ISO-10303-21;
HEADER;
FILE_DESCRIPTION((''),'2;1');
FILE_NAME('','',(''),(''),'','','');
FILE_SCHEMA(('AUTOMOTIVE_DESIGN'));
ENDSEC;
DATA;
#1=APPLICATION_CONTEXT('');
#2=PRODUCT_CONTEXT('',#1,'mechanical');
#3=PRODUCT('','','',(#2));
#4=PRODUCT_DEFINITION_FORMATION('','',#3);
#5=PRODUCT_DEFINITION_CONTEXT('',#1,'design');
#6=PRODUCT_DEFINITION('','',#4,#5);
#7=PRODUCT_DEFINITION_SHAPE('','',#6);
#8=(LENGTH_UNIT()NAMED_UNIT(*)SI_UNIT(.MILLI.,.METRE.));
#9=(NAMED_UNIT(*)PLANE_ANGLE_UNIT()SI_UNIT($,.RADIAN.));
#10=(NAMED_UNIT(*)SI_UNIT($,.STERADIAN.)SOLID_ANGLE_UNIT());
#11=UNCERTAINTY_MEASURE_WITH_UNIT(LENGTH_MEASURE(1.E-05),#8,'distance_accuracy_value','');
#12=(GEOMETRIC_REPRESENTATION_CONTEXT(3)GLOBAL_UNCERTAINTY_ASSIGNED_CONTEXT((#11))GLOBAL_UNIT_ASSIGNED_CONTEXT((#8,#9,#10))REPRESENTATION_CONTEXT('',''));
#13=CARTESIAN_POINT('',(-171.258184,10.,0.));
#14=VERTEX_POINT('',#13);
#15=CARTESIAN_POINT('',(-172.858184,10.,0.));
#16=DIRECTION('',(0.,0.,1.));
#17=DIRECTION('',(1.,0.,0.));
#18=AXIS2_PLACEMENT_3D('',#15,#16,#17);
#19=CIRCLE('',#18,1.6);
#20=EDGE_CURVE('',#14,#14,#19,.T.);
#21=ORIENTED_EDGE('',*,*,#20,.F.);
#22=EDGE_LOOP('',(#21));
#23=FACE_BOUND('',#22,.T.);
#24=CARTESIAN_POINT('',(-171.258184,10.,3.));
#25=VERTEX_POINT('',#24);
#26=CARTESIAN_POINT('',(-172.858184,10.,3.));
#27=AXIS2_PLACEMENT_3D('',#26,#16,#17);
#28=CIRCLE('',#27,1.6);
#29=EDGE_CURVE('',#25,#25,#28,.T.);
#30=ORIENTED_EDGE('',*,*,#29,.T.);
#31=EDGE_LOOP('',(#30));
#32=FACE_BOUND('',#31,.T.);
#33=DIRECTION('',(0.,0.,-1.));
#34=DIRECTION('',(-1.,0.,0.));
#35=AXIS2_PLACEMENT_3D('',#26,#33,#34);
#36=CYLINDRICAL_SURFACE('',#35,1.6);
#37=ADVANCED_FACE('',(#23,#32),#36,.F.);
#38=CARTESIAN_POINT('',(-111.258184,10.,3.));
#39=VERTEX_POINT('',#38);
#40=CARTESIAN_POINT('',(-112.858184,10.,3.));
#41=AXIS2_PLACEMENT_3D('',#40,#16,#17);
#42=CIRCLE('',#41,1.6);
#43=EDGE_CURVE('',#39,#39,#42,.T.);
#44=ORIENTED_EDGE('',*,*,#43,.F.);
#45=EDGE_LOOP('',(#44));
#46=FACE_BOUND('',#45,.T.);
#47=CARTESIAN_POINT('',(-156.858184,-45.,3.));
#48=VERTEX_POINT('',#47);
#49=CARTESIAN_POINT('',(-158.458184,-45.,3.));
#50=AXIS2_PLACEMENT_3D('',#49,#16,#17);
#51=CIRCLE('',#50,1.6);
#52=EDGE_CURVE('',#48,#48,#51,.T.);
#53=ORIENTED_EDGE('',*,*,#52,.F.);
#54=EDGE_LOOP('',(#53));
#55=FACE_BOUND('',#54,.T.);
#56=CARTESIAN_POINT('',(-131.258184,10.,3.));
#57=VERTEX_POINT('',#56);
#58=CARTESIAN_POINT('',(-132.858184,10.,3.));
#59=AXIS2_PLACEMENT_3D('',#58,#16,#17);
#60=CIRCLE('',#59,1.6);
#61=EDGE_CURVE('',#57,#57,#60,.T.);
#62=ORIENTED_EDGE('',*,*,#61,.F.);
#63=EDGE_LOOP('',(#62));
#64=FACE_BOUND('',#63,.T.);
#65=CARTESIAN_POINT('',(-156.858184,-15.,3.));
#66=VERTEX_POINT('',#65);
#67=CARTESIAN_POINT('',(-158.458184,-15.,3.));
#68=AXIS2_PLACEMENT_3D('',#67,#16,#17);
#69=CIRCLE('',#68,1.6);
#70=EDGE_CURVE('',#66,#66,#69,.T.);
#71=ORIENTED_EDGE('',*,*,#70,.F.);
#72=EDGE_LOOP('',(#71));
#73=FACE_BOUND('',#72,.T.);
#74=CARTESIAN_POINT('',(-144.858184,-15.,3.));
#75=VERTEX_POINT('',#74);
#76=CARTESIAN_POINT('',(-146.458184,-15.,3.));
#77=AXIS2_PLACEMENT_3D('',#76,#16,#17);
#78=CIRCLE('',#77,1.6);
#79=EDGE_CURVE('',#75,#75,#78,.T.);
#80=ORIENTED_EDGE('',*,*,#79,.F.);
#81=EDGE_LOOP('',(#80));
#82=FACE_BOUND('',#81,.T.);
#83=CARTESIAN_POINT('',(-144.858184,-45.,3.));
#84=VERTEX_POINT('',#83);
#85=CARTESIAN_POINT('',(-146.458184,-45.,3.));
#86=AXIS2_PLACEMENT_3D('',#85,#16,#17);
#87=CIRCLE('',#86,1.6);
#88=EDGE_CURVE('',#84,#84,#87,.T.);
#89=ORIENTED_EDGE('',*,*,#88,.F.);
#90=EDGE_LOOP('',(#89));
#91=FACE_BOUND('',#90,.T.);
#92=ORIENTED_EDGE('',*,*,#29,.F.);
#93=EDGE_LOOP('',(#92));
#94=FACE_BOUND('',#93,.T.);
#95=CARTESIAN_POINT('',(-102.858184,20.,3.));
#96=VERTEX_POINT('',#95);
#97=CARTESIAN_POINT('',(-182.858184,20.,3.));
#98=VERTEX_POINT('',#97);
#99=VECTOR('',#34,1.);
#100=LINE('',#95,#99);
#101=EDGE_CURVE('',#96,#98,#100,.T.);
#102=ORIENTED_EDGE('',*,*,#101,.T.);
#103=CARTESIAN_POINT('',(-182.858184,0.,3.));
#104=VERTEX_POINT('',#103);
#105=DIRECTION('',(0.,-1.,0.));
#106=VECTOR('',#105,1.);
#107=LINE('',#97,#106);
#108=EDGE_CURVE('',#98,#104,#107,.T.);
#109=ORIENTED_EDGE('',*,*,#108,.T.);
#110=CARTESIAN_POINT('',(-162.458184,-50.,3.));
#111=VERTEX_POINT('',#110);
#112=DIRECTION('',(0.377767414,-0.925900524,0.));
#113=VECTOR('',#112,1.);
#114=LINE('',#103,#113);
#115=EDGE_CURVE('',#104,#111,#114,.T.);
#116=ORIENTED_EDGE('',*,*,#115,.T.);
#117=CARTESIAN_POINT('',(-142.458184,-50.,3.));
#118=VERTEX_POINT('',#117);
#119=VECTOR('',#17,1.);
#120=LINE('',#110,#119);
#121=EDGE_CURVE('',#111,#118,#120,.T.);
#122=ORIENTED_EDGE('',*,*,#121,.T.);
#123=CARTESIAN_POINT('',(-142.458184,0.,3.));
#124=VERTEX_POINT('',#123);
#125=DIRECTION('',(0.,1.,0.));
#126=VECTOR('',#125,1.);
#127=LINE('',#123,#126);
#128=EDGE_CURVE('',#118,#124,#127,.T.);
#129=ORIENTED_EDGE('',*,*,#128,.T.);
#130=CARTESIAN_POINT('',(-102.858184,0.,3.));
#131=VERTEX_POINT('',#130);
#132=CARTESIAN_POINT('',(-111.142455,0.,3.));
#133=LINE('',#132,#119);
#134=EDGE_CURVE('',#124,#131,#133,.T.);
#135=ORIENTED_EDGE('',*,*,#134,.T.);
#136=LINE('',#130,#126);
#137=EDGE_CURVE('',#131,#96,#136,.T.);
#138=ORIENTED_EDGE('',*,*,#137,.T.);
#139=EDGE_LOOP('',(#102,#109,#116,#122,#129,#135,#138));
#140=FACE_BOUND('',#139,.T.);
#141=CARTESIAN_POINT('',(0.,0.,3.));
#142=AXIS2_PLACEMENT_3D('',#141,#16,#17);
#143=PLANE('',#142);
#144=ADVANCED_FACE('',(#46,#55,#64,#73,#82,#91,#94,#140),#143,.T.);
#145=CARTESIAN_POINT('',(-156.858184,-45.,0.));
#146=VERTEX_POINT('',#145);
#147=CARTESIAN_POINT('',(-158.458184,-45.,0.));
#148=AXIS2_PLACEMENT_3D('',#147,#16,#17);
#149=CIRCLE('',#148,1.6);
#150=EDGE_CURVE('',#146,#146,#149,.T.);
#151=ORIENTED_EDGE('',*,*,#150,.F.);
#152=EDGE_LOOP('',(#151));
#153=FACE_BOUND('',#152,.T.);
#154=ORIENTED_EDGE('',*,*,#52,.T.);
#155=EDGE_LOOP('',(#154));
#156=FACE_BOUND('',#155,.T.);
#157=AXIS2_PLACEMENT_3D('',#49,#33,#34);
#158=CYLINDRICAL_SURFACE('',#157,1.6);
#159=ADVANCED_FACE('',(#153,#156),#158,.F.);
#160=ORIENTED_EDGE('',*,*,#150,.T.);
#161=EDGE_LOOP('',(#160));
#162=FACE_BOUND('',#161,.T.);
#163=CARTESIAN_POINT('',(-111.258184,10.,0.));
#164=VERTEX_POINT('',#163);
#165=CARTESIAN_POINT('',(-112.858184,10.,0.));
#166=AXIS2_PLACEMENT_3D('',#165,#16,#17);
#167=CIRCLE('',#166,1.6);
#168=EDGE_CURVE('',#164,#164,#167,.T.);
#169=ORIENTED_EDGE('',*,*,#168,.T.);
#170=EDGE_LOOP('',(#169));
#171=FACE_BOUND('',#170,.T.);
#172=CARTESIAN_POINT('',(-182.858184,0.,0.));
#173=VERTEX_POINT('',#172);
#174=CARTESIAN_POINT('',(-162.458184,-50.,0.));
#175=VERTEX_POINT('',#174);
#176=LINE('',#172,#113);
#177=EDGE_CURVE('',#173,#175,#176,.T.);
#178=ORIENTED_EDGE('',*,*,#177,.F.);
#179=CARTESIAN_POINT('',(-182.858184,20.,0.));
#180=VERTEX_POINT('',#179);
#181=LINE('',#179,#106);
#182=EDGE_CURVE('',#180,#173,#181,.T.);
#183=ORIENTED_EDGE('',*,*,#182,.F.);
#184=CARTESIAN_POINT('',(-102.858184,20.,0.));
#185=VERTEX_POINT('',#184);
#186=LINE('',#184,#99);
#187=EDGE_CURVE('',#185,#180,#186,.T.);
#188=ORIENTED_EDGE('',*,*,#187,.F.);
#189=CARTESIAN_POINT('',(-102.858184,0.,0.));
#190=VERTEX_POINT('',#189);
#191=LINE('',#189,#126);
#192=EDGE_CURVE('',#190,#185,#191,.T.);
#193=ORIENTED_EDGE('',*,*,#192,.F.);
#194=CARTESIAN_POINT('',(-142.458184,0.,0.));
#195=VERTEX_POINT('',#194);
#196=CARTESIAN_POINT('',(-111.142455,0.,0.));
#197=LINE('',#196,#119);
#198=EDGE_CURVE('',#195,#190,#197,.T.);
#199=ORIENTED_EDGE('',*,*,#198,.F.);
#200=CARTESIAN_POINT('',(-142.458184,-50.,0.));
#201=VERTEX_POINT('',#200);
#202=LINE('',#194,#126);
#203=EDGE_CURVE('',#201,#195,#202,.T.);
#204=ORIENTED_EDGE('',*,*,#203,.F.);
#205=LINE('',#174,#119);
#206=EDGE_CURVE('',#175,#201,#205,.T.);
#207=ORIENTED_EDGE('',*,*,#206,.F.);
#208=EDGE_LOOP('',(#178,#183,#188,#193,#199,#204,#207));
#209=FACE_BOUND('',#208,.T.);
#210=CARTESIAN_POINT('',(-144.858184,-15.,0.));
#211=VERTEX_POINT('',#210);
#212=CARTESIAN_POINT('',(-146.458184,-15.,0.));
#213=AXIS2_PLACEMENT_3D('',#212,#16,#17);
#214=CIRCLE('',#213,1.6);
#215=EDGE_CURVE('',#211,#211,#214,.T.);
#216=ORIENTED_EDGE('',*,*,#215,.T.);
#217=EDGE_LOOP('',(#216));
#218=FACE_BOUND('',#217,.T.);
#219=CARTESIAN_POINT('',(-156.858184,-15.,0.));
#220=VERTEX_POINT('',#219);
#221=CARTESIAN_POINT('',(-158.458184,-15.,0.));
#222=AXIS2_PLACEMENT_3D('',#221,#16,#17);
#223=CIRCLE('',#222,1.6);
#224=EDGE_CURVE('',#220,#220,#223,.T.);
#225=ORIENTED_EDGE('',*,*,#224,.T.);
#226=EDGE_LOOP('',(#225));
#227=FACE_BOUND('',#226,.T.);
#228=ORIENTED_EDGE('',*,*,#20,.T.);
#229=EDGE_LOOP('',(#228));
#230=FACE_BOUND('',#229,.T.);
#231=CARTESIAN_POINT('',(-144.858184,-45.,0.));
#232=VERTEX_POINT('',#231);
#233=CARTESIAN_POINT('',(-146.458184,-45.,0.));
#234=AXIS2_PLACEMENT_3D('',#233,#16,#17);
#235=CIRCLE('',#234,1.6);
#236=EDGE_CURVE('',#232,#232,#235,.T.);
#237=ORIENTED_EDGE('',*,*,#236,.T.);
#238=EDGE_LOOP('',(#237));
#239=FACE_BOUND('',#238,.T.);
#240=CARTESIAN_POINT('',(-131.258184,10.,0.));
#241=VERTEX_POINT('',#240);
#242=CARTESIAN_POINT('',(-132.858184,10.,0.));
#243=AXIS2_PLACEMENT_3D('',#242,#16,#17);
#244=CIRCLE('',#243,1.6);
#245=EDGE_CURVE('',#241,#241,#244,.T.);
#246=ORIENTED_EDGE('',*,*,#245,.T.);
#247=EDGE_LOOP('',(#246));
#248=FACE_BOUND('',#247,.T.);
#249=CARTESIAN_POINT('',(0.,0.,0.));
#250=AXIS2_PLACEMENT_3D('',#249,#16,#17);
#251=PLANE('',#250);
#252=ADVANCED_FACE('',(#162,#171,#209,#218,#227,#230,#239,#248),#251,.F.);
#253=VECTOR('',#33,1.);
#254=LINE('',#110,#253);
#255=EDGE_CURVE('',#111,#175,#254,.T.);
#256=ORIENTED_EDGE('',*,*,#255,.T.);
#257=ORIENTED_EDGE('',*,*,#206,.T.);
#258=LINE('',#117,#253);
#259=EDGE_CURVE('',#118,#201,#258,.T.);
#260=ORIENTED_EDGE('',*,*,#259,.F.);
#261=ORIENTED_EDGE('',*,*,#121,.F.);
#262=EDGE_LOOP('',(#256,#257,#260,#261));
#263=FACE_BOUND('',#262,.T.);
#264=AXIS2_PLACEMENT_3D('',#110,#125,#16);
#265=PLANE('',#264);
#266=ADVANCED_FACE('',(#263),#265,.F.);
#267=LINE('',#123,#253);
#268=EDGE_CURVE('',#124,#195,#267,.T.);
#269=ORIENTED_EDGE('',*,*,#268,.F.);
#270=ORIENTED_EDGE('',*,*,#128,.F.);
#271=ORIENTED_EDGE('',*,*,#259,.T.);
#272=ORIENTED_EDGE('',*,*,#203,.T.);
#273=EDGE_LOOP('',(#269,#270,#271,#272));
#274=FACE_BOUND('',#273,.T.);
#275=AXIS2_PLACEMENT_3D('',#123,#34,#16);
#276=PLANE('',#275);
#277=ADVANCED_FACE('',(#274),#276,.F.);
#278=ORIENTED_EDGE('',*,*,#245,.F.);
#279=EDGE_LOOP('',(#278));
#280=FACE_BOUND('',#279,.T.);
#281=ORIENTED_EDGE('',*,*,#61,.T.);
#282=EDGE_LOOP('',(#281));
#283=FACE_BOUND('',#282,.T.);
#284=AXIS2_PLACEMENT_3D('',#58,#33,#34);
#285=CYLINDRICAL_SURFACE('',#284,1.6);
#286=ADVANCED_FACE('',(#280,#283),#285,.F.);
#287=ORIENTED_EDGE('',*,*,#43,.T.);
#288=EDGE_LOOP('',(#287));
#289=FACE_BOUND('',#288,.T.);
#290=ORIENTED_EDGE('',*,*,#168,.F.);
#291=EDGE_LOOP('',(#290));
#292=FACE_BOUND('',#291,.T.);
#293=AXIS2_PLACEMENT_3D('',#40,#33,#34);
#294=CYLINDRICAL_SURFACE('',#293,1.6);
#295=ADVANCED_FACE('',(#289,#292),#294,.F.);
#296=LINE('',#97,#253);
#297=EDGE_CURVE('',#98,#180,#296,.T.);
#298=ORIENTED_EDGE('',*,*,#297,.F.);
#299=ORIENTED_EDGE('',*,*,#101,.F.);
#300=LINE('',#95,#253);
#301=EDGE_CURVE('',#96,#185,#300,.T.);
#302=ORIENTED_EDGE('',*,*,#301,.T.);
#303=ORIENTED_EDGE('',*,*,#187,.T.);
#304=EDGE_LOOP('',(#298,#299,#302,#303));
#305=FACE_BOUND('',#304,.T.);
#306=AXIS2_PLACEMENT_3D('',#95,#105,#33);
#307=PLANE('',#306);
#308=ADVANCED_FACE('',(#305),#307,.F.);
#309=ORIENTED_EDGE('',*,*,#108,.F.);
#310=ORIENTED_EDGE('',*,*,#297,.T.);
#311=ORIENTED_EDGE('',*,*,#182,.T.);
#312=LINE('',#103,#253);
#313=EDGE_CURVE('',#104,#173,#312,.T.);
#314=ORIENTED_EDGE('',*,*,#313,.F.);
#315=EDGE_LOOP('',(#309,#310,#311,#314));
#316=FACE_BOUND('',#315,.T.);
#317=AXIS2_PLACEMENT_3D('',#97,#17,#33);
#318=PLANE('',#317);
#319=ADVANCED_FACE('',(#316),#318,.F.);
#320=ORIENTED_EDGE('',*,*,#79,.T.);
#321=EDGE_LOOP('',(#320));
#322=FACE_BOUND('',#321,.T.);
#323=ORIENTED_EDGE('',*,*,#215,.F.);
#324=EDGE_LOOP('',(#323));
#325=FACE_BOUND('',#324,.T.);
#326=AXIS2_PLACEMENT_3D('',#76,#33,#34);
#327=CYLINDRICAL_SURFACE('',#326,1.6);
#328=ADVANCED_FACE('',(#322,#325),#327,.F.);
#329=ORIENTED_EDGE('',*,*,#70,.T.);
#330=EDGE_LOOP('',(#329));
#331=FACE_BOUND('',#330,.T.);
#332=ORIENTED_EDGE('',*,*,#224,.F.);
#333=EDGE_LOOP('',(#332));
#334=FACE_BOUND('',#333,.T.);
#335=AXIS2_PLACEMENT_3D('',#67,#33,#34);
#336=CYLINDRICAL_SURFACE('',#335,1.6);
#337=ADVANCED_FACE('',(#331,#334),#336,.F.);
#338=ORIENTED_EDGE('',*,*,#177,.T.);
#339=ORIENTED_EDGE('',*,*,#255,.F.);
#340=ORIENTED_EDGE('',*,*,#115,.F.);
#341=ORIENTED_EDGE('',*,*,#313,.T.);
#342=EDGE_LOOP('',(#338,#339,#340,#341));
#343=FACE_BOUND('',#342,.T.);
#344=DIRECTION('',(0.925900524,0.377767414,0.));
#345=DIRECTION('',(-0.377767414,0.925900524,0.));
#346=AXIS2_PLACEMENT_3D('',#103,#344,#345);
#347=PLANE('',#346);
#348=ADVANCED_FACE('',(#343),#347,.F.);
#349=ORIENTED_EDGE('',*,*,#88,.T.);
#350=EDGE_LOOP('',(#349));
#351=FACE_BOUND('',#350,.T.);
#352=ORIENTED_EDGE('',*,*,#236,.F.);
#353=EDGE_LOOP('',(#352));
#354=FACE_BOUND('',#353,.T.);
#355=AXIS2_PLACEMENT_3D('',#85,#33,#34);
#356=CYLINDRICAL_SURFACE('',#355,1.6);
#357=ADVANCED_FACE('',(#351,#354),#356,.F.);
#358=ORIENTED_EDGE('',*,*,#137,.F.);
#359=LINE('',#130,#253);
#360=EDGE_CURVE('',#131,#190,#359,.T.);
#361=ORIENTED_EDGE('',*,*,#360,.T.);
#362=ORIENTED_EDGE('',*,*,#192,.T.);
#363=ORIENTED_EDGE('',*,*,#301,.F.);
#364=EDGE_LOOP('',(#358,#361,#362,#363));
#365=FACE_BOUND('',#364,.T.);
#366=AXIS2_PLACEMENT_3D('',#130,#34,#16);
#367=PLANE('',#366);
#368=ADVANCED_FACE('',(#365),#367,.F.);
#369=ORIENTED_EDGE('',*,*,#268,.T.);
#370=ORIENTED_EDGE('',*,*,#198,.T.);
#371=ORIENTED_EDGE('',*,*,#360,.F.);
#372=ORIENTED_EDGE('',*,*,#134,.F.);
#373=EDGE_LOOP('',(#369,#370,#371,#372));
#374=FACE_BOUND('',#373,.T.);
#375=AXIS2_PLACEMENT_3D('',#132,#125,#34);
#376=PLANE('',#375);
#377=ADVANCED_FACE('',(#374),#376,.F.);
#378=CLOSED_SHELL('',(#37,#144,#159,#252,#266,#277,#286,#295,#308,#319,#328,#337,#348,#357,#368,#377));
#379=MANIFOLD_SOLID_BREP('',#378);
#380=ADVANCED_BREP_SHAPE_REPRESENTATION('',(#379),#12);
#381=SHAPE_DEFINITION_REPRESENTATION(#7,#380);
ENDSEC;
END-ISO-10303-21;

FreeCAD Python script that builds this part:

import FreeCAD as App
import Part
import Sketcher

V = App.Vector

doc = App.newDocument("Part")
body = doc.addObject("PartDesign::Body", "Body")

sketch1 = doc.addObject("Sketcher::SketchObject", "Sketch")
body.addObject(sketch1)
sketch1.AttachmentSupport = (doc.XY_Plane, [""])
sketch1.MapMode = "FlatFace"
sketch1.addGeometry(Part.LineSegment(V(-182.858184, 20, 0), V(-182.858184, 0, 0)), False)
sketch1.addGeometry(Part.LineSegment(V(-182.858184, 0, 0), V(-162.458184, -50, 0)), False)
sketch1.addGeometry(Part.LineSegment(V(-162.458184, -50, 0), V(-142.458184, -50, 0)), False)
sketch1.addGeometry(Part.LineSegment(V(-142.458184, -50, 0), V(-142.458184, 0, 0)), False)
sketch1.addGeometry(Part.LineSegment(V(-142.458184, 0, 0), V(-102.858184, 0, 0)), False)
sketch1.addGeometry(Part.LineSegment(V(-102.858184, 0, 0), V(-102.858184, 20, 0)), False)
sketch1.addGeometry(Part.LineSegment(V(-102.858184, 20, 0), V(-182.858184, 20, 0)), False)
sketch1.addGeometry(Part.Circle(V(-158.458184, -45, 0), V(0, 0, 1), 1.6), False)
sketch1.addGeometry(Part.Circle(V(-146.458184, -45, 0), V(0, 0, 1), 1.6), False)
sketch1.addGeometry(Part.Circle(V(-158.458184, -15, 0), V(0, 0, 1), 1.6), False)
sketch1.addGeometry(Part.Circle(V(-146.458184, -15, 0), V(0, 0, 1), 1.6), False)
sketch1.addGeometry(Part.Circle(V(-172.858184, 10, 0), V(0, 0, 1), 1.6), False)
sketch1.addGeometry(Part.Circle(V(-132.858184, 10, 0), V(0, 0, 1), 1.6), False)
sketch1.addGeometry(Part.Circle(V(-112.858184, 10, 0), V(0, 0, 1), 1.6), False)
sketch1.addConstraint(Sketcher.Constraint("Coincident", 0, 2, 1, 1))
sketch1.addConstraint(Sketcher.Constraint("Coincident", 1, 2, 2, 1))
sketch1.addConstraint(Sketcher.Constraint("Coincident", 2, 2, 3, 1))
sketch1.addConstraint(Sketcher.Constraint("Coincident", 3, 2, 4, 1))
sketch1.addConstraint(Sketcher.Constraint("Coincident", 4, 2, 5, 1))
sketch1.addConstraint(Sketcher.Constraint("Coincident", 5, 2, 6, 1))
sketch1.addConstraint(Sketcher.Constraint("Coincident", 6, 2, 0, 1))
sketch1.addConstraint(Sketcher.Constraint("Vertical", 0))
sketch1.addConstraint(Sketcher.Constraint("Horizontal", 2))
sketch1.addConstraint(Sketcher.Constraint("Vertical", 3))
sketch1.addConstraint(Sketcher.Constraint("Horizontal", 4))
sketch1.addConstraint(Sketcher.Constraint("Vertical", 5))
sketch1.addConstraint(Sketcher.Constraint("Horizontal", 6))
sketch1.addConstraint(Sketcher.Constraint("Equal", 7, 8))
sketch1.addConstraint(Sketcher.Constraint("Equal", 8, 9))
sketch1.addConstraint(Sketcher.Constraint("Equal", 9, 10))
sketch1.addConstraint(Sketcher.Constraint("Equal", 10, 11))
sketch1.addConstraint(Sketcher.Constraint("Equal", 11, 12))
sketch1.addConstraint(Sketcher.Constraint("Equal", 12, 13))
sketch1.addConstraint(Sketcher.Constraint("PointOnObject", 0, 2, -1))
sketch1.addConstraint(Sketcher.Constraint("PointOnObject", 3, 2, -1))
sketch1.addConstraint(Sketcher.Constraint("Horizontal", 7, 3, 8, 3))
sketch1.addConstraint(Sketcher.Constraint("Horizontal", 9, 3, 10, 3))
sketch1.addConstraint(Sketcher.Constraint("Horizontal", 11, 3, 12, 3))
sketch1.addConstraint(Sketcher.Constraint("Horizontal", 12, 3, 13, 3))
sketch1.addConstraint(Sketcher.Constraint("Vertical", 7, 3, 9, 3))
sketch1.addConstraint(Sketcher.Constraint("Vertical", 8, 3, 10, 3))
sketch1.addConstraint(Sketcher.Constraint("Equal", 2, 0))
sketch1.addConstraint(Sketcher.Constraint("Diameter", 7, 3.2))
sketch1.addConstraint(Sketcher.Constraint("DistanceX", 2, 1, 2, 2, 20.0))
sketch1.addConstraint(Sketcher.Constraint("DistanceX", 6, 2, 6, 1, 80.0))
sketch1.addConstraint(Sketcher.Constraint("DistanceY", 3, 1, 3, 2, 50.0))
sketch1.addConstraint(Sketcher.Constraint("DistanceX", 4, 1, 4, 2, 39.6))
sketch1.addConstraint(Sketcher.Constraint("DistanceY", 7, 3, -1, 1, 45.0))
sketch1.addConstraint(Sketcher.Constraint("DistanceY", 9, 3, -1, 1, 15.0))
sketch1.addConstraint(Sketcher.Constraint("DistanceY", -1, 1, 11, 3, 10.0))
sketch1.addConstraint(Sketcher.Constraint("DistanceX", 7, 3, 8, 3, 12.0))
sketch1.addConstraint(Sketcher.Constraint("DistanceX", 11, 3, 12, 3, 40.0))
sketch1.addConstraint(Sketcher.Constraint("DistanceX", 12, 3, 13, 3, 20.0))
sketch1.addConstraint(Sketcher.Constraint("DistanceX", 0, 2, 11, 3, 10.0))
sketch1.addConstraint(Sketcher.Constraint("DistanceX", 1, 2, 7, 3, 4.0))
sketch1.addConstraint(Sketcher.Constraint("DistanceX", 7, 3, -1, 1, 158.458184))
pad1 = doc.addObject("PartDesign::Pad", "Pad")
body.addObject(pad1)
pad1.Profile = sketch1
pad1.Length = 3

doc.recompute()
